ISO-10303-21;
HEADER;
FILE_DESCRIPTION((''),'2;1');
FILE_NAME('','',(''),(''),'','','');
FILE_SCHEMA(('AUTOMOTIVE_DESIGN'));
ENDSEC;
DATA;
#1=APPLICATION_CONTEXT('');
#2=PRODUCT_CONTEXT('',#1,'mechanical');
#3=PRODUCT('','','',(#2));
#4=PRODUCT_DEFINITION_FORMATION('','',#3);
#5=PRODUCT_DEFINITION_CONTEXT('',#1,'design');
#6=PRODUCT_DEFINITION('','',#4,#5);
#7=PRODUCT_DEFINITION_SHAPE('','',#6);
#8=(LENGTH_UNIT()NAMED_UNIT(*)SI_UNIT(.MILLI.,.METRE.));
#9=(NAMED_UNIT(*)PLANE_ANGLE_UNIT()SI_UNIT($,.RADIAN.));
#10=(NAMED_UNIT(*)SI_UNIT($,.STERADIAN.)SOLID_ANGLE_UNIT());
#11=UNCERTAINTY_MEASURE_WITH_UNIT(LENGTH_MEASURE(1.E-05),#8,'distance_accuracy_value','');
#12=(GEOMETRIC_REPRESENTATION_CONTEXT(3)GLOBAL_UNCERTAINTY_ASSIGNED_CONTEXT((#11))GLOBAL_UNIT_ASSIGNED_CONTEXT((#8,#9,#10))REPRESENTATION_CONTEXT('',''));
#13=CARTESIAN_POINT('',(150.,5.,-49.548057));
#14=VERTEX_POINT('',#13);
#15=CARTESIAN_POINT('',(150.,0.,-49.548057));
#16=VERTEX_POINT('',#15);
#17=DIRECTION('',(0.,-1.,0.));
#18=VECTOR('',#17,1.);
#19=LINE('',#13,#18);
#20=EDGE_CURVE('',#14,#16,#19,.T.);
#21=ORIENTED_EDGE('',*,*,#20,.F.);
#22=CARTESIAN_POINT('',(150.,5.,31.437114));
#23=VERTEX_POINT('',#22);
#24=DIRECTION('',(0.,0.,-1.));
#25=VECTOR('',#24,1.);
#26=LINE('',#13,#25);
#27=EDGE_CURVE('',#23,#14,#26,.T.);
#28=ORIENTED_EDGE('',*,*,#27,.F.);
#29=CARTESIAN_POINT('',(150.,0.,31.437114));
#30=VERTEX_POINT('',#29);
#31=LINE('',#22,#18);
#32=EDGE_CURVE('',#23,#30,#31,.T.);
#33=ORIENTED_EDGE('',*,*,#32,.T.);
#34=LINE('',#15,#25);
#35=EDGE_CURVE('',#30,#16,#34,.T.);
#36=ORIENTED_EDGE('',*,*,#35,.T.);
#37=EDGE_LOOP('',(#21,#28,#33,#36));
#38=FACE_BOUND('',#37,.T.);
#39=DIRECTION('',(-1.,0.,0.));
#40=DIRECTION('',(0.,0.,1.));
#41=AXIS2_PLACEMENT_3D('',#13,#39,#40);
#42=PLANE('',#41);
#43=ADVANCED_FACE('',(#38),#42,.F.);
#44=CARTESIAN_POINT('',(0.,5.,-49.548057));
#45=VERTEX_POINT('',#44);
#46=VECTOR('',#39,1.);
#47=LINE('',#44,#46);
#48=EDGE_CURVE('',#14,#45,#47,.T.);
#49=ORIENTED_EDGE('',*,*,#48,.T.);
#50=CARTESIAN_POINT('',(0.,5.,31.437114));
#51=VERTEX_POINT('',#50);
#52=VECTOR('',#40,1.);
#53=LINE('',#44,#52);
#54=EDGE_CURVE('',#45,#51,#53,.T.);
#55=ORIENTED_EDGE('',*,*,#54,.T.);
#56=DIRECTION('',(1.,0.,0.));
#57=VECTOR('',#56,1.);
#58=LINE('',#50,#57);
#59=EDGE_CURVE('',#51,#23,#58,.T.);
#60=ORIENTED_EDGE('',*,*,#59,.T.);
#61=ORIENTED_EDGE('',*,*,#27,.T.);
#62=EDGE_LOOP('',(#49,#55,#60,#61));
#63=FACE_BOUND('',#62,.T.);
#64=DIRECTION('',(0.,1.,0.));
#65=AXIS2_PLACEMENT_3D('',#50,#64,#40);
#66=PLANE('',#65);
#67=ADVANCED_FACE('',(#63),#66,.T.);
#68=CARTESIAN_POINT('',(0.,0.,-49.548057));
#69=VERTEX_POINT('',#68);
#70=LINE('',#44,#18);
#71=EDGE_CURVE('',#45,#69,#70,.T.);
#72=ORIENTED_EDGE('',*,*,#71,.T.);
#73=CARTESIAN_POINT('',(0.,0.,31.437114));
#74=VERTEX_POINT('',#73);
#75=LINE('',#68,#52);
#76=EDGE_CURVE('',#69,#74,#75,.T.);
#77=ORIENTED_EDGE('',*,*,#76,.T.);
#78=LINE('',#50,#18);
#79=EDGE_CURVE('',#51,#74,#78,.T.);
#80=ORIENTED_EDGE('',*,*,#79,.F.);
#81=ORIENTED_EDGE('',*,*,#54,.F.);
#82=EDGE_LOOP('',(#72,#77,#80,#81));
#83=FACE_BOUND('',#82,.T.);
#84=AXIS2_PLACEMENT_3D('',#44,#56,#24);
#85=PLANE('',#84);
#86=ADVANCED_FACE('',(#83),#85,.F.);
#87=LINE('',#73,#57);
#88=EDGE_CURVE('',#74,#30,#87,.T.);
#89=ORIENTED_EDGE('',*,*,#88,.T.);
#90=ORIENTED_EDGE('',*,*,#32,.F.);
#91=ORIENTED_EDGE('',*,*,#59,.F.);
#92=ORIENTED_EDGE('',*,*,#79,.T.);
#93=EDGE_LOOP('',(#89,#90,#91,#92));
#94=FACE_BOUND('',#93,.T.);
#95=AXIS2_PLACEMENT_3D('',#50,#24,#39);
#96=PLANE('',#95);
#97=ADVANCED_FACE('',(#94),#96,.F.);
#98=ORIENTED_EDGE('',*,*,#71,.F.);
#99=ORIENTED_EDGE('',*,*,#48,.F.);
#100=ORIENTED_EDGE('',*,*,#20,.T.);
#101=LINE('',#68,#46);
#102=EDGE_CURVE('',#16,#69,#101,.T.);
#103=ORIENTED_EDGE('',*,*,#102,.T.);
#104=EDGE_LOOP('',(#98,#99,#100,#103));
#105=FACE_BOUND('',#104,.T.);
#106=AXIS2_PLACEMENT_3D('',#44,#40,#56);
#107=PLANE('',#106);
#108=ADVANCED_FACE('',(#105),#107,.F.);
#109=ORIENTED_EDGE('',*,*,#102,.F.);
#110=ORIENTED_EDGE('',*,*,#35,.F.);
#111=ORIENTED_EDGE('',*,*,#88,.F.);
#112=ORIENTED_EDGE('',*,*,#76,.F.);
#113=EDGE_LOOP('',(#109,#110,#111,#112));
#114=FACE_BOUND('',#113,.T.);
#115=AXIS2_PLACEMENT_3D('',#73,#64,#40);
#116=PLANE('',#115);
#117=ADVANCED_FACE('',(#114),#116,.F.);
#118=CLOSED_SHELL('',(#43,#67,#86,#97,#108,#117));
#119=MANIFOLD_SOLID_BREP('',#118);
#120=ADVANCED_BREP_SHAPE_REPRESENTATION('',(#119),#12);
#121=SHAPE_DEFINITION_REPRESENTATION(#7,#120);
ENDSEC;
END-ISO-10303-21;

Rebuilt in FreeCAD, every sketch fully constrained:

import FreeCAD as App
import Part
import Sketcher
from FreeCAD import Vector
Q = App.Units.Quantity


def add_polygon(sketch, points):
    """Adds a closed chain of lines whose ends are joined by coincident constraints."""
    first, n = sketch.GeometryCount, len(points)
    for a, b in zip(points, points[1:] + points[:1]):
        sketch.addGeometry(Part.LineSegment(App.Vector(*a, 0), App.Vector(*b, 0)), False)
    for i in range(n):
        sketch.addConstraint(Sketcher.Constraint("Coincident", first + i, 2, first + (i + 1) % n, 1))

doc = App.newDocument("Part")
body = doc.addObject("PartDesign::Body", "Body")

# Sketch on XZ plane
sketch1 = body.newObject("Sketcher::SketchObject", "Sketch")
sketch1.AttachmentSupport = (doc.getObject("XZ_Plane"), [""])
sketch1.MapMode = "FlatFace"
add_polygon(sketch1, [(0, -49.548057), (0, 31.437114), (150, 31.437114), (150, -49.548057)])  # lines 0-3
sketch1.addConstraint([
    Sketcher.Constraint("Vertical", 0),
    Sketcher.Constraint("Horizontal", 1),
    Sketcher.Constraint("Vertical", 2),
    Sketcher.Constraint("Horizontal", 3),
    Sketcher.Constraint("PointOnObject", 0, 2, -2),
    Sketcher.Constraint("DistanceX", 1, 1, 1, 2, Q("150 mm")),
    Sketcher.Constraint("DistanceY", 0, 1, 0, 2, Q("80.985171 mm")),
    Sketcher.Constraint("DistanceY", -1, 1, 0, 2, Q("31.437114 mm")),
])
pad1 = body.newObject("PartDesign::Pad", "Pad")
pad1.Profile = sketch1
pad1.Length = 5
pad1.Reversed = True

doc.recompute()
